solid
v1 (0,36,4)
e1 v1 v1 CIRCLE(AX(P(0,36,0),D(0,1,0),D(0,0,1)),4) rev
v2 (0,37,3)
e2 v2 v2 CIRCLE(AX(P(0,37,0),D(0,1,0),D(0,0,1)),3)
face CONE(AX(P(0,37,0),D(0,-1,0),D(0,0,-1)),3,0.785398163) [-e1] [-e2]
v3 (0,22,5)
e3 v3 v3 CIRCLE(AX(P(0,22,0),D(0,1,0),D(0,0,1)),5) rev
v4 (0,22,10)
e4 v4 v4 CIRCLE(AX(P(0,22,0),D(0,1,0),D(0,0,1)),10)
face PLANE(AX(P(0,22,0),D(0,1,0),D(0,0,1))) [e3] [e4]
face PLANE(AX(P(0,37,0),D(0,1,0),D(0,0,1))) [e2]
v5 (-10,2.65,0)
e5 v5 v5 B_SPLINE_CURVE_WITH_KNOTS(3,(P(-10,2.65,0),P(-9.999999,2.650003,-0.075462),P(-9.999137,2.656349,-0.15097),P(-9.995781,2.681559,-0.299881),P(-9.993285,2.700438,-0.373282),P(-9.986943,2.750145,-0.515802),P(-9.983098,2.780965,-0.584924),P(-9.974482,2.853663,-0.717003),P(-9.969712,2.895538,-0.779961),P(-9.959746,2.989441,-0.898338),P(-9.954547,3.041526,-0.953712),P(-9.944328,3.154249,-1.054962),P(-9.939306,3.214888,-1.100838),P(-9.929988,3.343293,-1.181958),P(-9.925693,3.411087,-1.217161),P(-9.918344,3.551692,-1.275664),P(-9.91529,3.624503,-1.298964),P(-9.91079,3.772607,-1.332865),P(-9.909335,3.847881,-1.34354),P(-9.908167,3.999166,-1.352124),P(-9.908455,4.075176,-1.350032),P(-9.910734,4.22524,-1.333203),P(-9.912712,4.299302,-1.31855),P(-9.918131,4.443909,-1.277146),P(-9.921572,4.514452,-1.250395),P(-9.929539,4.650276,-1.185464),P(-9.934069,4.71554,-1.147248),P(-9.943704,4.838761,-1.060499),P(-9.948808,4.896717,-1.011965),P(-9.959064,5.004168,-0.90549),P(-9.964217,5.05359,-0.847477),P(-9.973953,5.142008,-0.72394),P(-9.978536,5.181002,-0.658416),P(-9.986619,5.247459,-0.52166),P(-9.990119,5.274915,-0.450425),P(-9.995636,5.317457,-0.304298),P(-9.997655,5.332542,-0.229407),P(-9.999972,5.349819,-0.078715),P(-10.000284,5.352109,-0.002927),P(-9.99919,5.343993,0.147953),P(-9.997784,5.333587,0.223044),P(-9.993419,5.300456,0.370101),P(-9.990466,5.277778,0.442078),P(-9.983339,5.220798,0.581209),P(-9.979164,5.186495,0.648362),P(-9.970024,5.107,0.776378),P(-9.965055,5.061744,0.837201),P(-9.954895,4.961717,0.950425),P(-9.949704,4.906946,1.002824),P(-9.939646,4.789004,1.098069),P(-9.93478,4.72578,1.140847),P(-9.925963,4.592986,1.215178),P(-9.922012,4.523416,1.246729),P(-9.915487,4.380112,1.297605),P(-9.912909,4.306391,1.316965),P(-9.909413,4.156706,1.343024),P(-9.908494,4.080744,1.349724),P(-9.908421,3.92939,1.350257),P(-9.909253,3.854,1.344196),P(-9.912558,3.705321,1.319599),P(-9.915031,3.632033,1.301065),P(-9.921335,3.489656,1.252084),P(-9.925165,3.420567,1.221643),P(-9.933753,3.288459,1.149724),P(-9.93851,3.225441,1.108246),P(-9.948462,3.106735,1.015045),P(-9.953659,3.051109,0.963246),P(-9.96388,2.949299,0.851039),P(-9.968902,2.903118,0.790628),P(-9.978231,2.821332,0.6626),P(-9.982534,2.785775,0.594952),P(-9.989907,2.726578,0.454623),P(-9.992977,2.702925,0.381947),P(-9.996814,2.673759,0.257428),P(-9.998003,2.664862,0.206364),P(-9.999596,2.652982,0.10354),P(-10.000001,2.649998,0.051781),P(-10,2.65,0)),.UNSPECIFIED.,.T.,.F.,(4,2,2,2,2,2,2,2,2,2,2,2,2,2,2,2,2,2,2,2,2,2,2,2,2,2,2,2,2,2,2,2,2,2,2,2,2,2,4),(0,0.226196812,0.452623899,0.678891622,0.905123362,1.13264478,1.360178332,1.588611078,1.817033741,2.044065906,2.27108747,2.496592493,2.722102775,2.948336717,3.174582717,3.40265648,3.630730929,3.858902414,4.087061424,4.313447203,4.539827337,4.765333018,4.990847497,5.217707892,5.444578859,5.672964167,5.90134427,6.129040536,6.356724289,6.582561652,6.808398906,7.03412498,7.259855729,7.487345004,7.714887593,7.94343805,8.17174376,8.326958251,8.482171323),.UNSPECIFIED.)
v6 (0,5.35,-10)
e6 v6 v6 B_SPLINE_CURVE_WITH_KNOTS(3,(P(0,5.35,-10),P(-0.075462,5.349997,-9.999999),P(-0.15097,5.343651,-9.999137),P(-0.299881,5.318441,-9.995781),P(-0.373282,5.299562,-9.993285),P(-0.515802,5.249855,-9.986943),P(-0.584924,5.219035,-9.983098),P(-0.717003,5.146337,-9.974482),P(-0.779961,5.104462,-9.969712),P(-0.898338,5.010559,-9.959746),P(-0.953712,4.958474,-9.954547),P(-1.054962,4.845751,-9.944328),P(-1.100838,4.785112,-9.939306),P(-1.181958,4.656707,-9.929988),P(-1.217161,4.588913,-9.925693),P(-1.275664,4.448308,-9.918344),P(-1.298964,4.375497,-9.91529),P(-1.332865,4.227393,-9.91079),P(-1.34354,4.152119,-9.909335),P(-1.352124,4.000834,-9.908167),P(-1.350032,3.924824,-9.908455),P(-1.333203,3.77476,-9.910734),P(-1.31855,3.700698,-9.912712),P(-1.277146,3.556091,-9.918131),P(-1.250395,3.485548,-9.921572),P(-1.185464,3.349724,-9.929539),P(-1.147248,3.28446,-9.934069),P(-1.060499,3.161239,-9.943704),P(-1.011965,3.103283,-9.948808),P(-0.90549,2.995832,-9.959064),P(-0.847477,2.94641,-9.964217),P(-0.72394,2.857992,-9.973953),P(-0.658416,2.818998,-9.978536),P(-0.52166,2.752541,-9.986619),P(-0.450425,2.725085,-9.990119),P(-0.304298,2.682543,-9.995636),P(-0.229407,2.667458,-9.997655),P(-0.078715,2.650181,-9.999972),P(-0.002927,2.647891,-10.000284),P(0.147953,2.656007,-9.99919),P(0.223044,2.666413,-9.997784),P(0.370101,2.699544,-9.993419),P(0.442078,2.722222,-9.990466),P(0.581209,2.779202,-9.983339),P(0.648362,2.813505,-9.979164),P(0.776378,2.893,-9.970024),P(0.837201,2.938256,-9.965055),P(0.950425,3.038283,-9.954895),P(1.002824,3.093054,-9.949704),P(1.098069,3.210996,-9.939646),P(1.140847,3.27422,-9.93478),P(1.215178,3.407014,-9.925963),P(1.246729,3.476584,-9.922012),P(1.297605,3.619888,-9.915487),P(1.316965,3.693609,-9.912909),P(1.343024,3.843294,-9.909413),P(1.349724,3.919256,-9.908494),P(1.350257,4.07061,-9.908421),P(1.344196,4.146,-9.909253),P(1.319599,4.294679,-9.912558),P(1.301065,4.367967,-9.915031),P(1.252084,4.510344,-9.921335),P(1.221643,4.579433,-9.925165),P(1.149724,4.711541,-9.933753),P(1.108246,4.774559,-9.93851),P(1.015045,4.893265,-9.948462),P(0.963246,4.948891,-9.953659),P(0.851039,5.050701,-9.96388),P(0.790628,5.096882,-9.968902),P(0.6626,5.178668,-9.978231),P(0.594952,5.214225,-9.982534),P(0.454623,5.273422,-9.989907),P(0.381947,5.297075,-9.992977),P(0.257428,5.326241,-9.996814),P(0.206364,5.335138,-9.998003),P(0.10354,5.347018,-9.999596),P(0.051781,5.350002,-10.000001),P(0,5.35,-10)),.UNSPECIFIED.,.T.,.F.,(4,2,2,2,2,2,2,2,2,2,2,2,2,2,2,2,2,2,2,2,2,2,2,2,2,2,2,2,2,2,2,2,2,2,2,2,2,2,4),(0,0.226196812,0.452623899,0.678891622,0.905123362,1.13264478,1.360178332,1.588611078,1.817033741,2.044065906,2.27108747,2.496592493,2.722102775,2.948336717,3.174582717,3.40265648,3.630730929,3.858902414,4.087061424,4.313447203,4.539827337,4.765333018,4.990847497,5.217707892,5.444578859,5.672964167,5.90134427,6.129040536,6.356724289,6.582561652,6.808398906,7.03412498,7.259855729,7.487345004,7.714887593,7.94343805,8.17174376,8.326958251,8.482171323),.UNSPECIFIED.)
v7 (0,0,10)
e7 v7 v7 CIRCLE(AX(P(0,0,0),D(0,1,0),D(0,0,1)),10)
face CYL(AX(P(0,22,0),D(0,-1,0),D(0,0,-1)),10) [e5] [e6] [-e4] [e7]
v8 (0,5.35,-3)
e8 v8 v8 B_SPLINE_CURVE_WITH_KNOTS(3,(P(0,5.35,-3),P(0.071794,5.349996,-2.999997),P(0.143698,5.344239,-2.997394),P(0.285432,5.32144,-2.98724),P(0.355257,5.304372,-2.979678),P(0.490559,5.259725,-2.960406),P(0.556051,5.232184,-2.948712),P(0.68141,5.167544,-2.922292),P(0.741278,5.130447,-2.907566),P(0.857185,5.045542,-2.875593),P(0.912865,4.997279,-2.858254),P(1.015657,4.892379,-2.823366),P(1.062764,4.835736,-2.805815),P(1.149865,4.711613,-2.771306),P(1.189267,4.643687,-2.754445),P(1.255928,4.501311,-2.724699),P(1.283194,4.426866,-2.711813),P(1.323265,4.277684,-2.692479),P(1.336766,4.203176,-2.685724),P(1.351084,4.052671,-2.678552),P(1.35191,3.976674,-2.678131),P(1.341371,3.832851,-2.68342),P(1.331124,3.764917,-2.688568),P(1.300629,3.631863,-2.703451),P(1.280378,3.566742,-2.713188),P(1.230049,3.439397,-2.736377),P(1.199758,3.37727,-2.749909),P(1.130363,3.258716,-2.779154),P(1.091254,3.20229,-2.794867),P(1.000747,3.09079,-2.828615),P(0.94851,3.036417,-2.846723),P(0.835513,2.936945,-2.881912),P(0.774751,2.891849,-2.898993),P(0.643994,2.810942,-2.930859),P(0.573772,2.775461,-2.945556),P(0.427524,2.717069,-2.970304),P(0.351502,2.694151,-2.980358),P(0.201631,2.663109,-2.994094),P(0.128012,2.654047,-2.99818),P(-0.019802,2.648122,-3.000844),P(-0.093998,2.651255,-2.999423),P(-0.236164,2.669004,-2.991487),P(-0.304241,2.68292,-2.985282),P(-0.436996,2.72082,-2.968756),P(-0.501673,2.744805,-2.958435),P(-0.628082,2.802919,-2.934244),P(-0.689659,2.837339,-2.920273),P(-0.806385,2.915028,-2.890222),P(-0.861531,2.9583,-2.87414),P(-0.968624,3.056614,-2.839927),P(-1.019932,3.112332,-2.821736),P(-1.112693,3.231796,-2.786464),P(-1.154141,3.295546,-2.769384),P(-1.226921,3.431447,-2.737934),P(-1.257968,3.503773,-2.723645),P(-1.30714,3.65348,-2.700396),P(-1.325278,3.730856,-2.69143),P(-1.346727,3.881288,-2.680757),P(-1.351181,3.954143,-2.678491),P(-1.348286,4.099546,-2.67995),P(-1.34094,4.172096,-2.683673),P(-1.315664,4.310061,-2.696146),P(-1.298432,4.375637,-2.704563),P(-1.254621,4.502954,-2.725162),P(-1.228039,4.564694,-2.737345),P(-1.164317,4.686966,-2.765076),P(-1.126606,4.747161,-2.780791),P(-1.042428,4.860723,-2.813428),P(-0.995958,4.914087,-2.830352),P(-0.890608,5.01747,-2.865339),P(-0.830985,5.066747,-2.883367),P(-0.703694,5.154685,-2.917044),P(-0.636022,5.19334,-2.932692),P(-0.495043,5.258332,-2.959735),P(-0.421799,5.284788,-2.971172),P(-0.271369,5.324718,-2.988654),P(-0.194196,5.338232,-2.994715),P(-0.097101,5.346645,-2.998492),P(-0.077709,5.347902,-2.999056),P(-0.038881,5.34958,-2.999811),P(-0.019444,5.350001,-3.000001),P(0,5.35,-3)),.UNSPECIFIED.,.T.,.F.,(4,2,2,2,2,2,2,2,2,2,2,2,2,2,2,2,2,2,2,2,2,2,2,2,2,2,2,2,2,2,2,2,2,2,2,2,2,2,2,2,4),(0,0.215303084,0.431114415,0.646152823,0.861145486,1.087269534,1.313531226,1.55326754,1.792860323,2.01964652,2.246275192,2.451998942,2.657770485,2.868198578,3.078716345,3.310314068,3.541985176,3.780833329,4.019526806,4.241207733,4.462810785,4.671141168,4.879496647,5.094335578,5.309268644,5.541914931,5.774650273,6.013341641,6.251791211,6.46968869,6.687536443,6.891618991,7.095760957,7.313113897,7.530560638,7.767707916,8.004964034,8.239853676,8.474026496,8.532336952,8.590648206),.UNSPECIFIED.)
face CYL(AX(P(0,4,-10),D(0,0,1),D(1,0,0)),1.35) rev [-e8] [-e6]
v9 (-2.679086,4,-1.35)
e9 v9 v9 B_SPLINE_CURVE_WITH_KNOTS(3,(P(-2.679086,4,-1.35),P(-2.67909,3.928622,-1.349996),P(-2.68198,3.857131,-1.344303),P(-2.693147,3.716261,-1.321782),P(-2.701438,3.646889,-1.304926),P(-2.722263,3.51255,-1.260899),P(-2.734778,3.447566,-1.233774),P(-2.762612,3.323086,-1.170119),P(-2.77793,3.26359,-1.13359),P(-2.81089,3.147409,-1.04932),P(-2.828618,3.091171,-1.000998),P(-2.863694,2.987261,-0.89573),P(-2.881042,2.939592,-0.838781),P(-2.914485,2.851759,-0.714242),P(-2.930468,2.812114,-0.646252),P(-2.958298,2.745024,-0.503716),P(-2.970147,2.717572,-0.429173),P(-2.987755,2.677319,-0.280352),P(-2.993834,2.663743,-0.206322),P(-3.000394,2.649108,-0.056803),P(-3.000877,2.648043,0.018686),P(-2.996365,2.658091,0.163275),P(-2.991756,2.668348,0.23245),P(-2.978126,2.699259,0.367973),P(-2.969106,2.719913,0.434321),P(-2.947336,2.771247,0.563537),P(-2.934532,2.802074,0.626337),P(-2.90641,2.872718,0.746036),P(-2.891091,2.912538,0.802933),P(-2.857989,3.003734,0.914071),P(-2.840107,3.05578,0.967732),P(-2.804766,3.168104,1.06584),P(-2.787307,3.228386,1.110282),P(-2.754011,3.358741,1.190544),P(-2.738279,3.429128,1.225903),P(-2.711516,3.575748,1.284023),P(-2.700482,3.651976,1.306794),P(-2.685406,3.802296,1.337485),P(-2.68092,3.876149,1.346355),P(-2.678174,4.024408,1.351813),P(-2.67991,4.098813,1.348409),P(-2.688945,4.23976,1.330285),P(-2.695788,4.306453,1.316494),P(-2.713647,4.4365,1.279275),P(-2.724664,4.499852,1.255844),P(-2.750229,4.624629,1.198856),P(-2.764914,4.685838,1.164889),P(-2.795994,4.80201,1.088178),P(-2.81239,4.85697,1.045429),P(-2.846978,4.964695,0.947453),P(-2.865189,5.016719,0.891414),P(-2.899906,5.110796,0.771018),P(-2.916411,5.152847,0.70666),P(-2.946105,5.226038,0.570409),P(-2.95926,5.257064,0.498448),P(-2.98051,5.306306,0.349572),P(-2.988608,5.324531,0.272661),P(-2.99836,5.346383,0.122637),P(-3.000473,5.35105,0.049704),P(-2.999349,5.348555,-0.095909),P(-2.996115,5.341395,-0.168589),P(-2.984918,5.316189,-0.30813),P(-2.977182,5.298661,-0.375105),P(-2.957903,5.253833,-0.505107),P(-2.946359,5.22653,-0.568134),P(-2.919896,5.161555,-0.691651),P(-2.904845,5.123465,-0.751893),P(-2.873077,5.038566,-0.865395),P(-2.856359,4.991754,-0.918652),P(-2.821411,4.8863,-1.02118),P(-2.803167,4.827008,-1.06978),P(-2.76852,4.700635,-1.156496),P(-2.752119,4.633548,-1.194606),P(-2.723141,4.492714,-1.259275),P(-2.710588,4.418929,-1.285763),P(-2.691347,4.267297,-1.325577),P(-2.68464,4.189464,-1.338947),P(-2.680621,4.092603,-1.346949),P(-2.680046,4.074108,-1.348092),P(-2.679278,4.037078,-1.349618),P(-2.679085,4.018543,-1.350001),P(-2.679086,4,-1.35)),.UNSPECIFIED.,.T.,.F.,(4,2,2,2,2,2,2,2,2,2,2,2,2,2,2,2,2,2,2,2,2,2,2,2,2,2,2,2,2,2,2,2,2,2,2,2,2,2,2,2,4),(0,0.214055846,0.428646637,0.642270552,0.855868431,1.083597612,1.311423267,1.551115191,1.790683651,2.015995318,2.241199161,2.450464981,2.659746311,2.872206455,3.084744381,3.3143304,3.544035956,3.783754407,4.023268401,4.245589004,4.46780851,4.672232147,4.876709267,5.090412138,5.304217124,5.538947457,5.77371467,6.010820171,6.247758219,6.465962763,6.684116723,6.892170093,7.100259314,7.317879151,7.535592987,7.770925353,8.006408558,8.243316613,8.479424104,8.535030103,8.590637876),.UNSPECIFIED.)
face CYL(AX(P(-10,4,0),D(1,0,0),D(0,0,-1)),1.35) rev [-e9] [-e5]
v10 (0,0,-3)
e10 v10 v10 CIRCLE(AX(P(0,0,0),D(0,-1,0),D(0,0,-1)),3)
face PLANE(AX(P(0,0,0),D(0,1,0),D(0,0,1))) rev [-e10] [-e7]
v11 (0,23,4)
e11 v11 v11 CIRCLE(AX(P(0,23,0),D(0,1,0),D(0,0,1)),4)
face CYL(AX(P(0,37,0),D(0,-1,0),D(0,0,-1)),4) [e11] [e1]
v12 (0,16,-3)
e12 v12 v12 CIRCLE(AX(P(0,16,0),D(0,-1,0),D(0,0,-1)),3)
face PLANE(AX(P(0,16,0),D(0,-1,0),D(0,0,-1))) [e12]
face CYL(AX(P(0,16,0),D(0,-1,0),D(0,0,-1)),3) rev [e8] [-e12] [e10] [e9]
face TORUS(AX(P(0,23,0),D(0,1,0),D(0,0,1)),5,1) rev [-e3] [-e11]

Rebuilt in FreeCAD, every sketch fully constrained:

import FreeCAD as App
import Part
import Sketcher
from FreeCAD import Vector


def edges_at(feature, points):
    """Names of the edges that pass closest to the given points."""
    edges = feature.Shape.Edges
    near = lambda p: min(range(len(edges)), key=lambda i: edges[i].distToShape(Part.Vertex(*p))[0])
    return sorted({f"Edge{near(p) + 1}" for p in points})

doc = App.newDocument("Part")
params = doc.addObject("Spreadsheet::Sheet", "Params")
for row, (alias, value) in enumerate([
    ("sketch1_diameter", "20 mm"),
    ("pad1_length", "22 mm"),
    ("sketch2_diameter", "8 mm"),
    ("pad2_length", "15 mm"),
    ("fillet_radius", "1 mm"),
    ("chamfer_size", "1 mm"),
    ("sketch3_diameter", "6 mm"),
    ("pocket1_length", "16 mm"),
    ("sketch4_diameter", "2.7 mm"),
    ("pocket2_length", "10 mm"),
    ("sketch5_diameter", "2.7 mm"),
    ("pocket3_length", "10 mm"),
], start=1):
    params.set(f"A{row}", alias)
    params.set(f"B{row}", "=" + value)
    params.setAlias(f"B{row}", alias)

body = doc.addObject("PartDesign::Body", "Body")

# Sketch on XZ plane
sketch1 = body.newObject("Sketcher::SketchObject", "Sketch")
sketch1.AttachmentSupport = (doc.getObject("XZ_Plane"), [""])
sketch1.MapMode = "FlatFace"
sketch1.addGeometry(Part.Circle(Vector(0, 0, 0), Vector(0, 0, 1), 10), False)
sketch1.addConstraint([
    Sketcher.Constraint("Coincident", 0, 3, -1, 1),
    Sketcher.Constraint("Diameter", 0, 20.0),
])
sketch1.setExpression("Constraints[1]", "Params.sketch1_diameter")
pad1 = body.newObject("PartDesign::Pad", "Pad")
pad1.Profile = sketch1
pad1.setExpression("Length", "Params.pad1_length")
pad1.Reversed = True

# Sketch on XZ plane
sketch2 = body.newObject("Sketcher::SketchObject", "Sketch001")
sketch2.AttachmentSupport = (doc.getObject("XZ_Plane"), [""])
sketch2.MapMode = "FlatFace"
sketch2.AttachmentOffset = App.Placement(Vector(0, 0, -22), App.Rotation())
sketch2.addGeometry(Part.Circle(Vector(0, 0, 0), Vector(0, 0, 1), 4), False)
sketch2.addConstraint([
    Sketcher.Constraint("Coincident", 0, 3, -1, 1),
    Sketcher.Constraint("Diameter", 0, 8.0),
])
sketch2.setExpression("Constraints[1]", "Params.sketch2_diameter")
pad2 = body.newObject("PartDesign::Pad", "Pad001")
pad2.Profile = sketch2
pad2.setExpression("Length", "Params.pad2_length")
pad2.Reversed = True
doc.recompute()

fillet = body.newObject("PartDesign::Fillet", "Fillet")
fillet.Base = (pad2, edges_at(pad2, [(-4, 22, 0)]))
fillet.setExpression("Radius", "Params.fillet_radius")
doc.recompute()

chamfer = body.newObject("PartDesign::Chamfer", "Chamfer")
chamfer.Base = (fillet, edges_at(fillet, [(-4, 37, 0)]))
chamfer.setExpression("Size", "Params.chamfer_size")

# Sketch on XZ plane
sketch3 = body.newObject("Sketcher::SketchObject", "Sketch002")
sketch3.AttachmentSupport = (doc.getObject("XZ_Plane"), [""])
sketch3.MapMode = "FlatFace"
sketch3.addGeometry(Part.Circle(Vector(0, 0, 0), Vector(0, 0, 1), 3), False)
sketch3.addConstraint([
    Sketcher.Constraint("Coincident", 0, 3, -1, 1),
    Sketcher.Constraint("Diameter", 0, 6.0),
])
sketch3.setExpression("Constraints[1]", "Params.sketch3_diameter")
pocket1 = body.newObject("PartDesign::Pocket", "Pocket")
pocket1.Profile = sketch3
pocket1.setExpression("Length", "Params.pocket1_length")

# Sketch on XY plane
sketch4 = body.newObject("Sketcher::SketchObject", "Sketch003")
sketch4.AttachmentSupport = (doc.getObject("XY_Plane"), [""])
sketch4.MapMode = "FlatFace"
sketch4.addGeometry(Part.Circle(Vector(0, 4, 0), Vector(0, 0, 1), 1.4), False)
sketch4.addConstraint([
    Sketcher.Constraint("PointOnObject", 0, 3, -2),
    Sketcher.Constraint("Diameter", 0, 2.7),
    Sketcher.Constraint("DistanceY", -1, 1, 0, 3, 4.0),
])
sketch4.setExpression("Constraints[1]", "Params.sketch4_diameter")
pocket2 = body.newObject("PartDesign::Pocket", "Pocket001")
pocket2.Profile = sketch4
pocket2.setExpression("Length", "Params.pocket2_length")

# Sketch on YZ plane
sketch5 = body.newObject("Sketcher::SketchObject", "Sketch004")
sketch5.AttachmentSupport = (doc.getObject("YZ_Plane"), [""])
sketch5.MapMode = "FlatFace"
sketch5.addGeometry(Part.Circle(Vector(4, 0, 0), Vector(0, 0, 1), 1.4), False)
sketch5.addConstraint([
    Sketcher.Constraint("PointOnObject", 0, 3, -1),
    Sketcher.Constraint("Diameter", 0, 2.7),
    Sketcher.Constraint("DistanceX", -1, 1, 0, 3, 4.0),
])
sketch5.setExpression("Constraints[1]", "Params.sketch5_diameter")
pocket3 = body.newObject("PartDesign::Pocket", "Pocket002")
pocket3.Profile = sketch5
pocket3.setExpression("Length", "Params.pocket3_length")

doc.recompute()
